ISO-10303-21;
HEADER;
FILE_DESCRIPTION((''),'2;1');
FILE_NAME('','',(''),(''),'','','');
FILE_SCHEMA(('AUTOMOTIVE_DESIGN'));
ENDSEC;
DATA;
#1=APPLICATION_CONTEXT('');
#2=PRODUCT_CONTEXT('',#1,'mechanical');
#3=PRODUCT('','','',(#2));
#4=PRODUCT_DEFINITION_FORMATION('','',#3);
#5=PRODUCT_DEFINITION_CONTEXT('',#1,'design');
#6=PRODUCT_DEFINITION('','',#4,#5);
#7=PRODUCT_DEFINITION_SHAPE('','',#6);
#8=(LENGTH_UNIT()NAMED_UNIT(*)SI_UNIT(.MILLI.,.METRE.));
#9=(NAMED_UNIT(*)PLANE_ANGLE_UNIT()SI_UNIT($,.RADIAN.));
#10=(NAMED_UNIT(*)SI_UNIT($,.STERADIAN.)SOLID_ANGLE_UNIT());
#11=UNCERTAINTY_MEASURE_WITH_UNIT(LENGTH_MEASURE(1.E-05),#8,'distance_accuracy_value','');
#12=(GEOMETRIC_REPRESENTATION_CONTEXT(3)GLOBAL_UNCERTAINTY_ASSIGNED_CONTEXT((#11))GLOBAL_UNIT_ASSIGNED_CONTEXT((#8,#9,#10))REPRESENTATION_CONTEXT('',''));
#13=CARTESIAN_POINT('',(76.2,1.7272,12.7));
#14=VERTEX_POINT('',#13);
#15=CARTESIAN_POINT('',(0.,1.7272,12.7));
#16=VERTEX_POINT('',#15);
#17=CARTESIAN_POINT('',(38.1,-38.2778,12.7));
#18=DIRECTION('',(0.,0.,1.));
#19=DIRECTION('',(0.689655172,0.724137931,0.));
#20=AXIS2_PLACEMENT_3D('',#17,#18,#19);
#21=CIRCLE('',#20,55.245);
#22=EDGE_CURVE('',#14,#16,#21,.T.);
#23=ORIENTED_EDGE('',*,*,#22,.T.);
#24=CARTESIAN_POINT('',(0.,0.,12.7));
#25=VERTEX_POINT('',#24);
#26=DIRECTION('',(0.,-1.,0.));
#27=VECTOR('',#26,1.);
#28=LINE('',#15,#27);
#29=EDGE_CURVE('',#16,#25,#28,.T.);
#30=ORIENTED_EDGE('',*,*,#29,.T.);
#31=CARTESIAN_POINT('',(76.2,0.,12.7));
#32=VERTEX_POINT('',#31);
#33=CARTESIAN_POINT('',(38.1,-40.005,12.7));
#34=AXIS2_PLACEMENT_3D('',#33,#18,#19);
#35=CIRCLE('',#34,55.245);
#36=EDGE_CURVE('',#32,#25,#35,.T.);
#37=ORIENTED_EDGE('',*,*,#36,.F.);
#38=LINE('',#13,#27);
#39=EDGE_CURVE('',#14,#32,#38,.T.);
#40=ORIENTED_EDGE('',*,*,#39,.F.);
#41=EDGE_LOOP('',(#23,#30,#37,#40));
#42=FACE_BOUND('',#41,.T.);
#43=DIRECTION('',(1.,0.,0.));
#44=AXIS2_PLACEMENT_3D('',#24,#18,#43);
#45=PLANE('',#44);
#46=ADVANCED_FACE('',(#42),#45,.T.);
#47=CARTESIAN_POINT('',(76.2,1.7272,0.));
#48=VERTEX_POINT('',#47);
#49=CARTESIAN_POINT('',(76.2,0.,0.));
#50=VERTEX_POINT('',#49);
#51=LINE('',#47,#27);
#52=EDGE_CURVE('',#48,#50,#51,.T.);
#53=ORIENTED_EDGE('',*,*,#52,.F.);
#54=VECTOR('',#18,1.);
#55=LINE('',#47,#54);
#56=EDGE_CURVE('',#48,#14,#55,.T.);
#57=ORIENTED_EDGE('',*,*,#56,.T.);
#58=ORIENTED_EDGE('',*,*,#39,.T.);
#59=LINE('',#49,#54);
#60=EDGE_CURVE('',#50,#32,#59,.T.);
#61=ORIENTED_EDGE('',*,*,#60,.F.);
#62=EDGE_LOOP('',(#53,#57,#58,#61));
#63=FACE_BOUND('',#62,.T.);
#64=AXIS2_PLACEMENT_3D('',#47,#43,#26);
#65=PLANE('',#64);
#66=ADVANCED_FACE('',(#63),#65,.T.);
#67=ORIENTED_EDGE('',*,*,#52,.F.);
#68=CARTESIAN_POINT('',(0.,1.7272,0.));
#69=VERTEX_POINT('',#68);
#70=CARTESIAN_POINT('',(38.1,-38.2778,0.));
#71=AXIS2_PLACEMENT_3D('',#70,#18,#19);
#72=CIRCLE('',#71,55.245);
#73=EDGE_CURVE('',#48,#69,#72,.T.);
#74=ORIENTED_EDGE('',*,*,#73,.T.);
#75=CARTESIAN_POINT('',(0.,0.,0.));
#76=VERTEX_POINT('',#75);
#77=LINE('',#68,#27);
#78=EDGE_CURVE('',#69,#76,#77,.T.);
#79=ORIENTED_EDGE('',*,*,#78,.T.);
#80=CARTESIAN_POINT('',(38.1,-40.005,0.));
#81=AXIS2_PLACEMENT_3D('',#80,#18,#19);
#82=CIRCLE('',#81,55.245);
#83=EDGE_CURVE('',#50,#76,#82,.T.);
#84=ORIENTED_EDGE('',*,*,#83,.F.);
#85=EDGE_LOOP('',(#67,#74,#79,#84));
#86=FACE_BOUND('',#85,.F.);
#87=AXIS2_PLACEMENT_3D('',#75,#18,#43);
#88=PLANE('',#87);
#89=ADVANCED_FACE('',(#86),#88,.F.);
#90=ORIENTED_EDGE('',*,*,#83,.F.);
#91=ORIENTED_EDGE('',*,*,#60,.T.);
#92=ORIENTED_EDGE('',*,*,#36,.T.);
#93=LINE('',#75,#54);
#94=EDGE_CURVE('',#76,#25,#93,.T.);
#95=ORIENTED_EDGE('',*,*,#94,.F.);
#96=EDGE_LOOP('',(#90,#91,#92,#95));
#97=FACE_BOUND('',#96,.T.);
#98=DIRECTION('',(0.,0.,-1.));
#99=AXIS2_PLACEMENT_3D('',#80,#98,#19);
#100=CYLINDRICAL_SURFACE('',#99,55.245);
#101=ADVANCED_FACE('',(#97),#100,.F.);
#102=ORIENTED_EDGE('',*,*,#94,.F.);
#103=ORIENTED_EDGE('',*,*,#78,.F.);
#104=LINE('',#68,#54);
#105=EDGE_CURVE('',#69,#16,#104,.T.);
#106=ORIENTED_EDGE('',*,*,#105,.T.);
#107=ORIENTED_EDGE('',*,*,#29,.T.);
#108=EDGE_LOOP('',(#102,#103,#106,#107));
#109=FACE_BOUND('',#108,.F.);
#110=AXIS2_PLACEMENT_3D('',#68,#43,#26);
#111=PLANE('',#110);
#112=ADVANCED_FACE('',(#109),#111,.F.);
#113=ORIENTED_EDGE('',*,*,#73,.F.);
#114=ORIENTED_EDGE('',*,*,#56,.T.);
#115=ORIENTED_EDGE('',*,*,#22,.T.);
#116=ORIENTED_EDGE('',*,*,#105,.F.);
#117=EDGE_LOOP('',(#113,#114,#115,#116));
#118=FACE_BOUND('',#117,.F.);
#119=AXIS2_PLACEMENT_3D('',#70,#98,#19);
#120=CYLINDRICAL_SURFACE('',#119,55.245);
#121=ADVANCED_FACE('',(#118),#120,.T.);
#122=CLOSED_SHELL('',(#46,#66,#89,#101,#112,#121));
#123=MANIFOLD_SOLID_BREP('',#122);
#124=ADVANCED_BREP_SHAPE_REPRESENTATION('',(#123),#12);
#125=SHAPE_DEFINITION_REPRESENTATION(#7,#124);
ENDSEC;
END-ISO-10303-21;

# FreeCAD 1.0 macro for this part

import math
import FreeCAD as App
import Part
import Sketcher

V = App.Vector
Q = App.Units.Quantity

doc = App.newDocument("Part")
body = doc.addObject("PartDesign::Body", "Body")

# Sketch on XY plane
sketch1 = doc.addObject("Sketcher::SketchObject", "Sketch")
body.addObject(sketch1)
sketch1.AttachmentSupport = (doc.XY_Plane, [""])
sketch1.MapMode = "FlatFace"
sketch1.addGeometry([
    Part.ArcOfCircle(Part.Circle(V(38.1, -40, 0), V(0, 0, 1), 55.2), math.radians(46), math.radians(134)),
    Part.LineSegment(V(76.2, 0, 0), V(76.2, 1.7, 0)),
    Part.ArcOfCircle(Part.Circle(V(38.1, -38.3, 0), V(0, 0, 1), 55.2), math.radians(46), math.radians(134)),
    Part.LineSegment(V(0, 1.7, 0), V(0, 0, 0)),
], False)
sketch1.addConstraint([
    Sketcher.Constraint("Coincident", 0, 1, 1, 1),
    Sketcher.Constraint("Coincident", 1, 2, 2, 1),
    Sketcher.Constraint("Coincident", 2, 2, 3, 1),
    Sketcher.Constraint("Coincident", 3, 2, 0, 2),
    Sketcher.Constraint("Vertical", 1),
    Sketcher.Constraint("Vertical", 3),
    Sketcher.Constraint("Coincident", 3, 2, -1, 1),
    Sketcher.Constraint("Equal", 0, 2),
    Sketcher.Constraint("PointOnObject", 0, 1, -1),
    Sketcher.Constraint("Horizontal", 1, 2, 2, 2),
    Sketcher.Constraint("DistanceX", -1, 1, 0, 1, Q("3 in")),
    Sketcher.Constraint("DistanceY", 1, 1, 1, 2, Q("0.068 in")),
    Sketcher.Constraint("Radius", 0, Q("2.175 in")),
])
pad1 = doc.addObject("PartDesign::Pad", "Pad")
body.addObject(pad1)
pad1.Profile = sketch1
pad1.Length = Q("0.5 in")

doc.recompute()
